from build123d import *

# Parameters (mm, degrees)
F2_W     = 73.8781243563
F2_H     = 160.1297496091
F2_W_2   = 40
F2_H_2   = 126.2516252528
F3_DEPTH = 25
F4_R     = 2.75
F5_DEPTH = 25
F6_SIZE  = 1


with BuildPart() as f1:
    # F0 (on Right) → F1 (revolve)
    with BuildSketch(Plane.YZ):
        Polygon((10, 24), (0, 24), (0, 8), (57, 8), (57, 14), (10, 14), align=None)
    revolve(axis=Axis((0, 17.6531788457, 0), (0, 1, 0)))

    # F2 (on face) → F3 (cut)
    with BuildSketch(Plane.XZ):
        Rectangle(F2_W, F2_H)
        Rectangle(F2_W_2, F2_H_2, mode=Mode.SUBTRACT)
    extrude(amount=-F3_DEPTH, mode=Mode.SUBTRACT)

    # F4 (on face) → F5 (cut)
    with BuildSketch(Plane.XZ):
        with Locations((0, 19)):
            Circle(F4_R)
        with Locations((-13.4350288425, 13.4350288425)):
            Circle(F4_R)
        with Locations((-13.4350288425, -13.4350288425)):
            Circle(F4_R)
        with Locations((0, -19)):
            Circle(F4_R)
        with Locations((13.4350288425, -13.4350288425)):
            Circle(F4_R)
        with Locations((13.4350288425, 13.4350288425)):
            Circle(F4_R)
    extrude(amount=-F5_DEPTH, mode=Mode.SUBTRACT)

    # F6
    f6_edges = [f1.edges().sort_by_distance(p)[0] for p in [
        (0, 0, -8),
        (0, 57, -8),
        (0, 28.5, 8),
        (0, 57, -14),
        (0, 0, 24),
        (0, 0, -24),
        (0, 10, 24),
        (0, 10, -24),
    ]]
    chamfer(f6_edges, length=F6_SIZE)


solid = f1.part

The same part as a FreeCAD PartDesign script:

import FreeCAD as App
import Part
import Sketcher
from FreeCAD import Vector
Q = App.Units.Quantity


def edges_at(feature, points):
    """Names of the edges that pass closest to the given points."""
    edges = feature.Shape.Edges
    near = lambda p: min(range(len(edges)), key=lambda i: edges[i].distToShape(Part.Vertex(*p))[0])
    return sorted({f"Edge{near(p) + 1}" for p in points})

doc = App.newDocument("Part")
body = doc.addObject("PartDesign::Body", "Body")

# Sketch on YZ plane
sketch1 = body.newObject("Sketcher::SketchObject", "Sketch")
sketch1.AttachmentSupport = (doc.getObject("YZ_Plane"), [""])
sketch1.MapMode = "FlatFace"
sketch1.addGeometry([
    Part.LineSegment(Vector(10, 24, 0), Vector(0, 24, 0)),  # 0
    Part.LineSegment(Vector(0, 24, 0), Vector(0, 8, 0)),  # 1
    Part.LineSegment(Vector(0, 8, 0), Vector(57, 8, 0)),  # 2
    Part.LineSegment(Vector(57, 8, 0), Vector(57, 14, 0)),  # 3
    Part.LineSegment(Vector(57, 14, 0), Vector(10, 14, 0)),  # 4
    Part.LineSegment(Vector(10, 14, 0), Vector(10, 24, 0)),  # 5
], False)
sketch1.addConstraint([
    Sketcher.Constraint("Coincident", 0, 2, 1, 1),
    Sketcher.Constraint("Coincident", 1, 2, 2, 1),
    Sketcher.Constraint("Coincident", 2, 2, 3, 1),
    Sketcher.Constraint("Coincident", 3, 2, 4, 1),
    Sketcher.Constraint("Coincident", 4, 2, 5, 1),
    Sketcher.Constraint("Coincident", 5, 2, 0, 1),
    Sketcher.Constraint("Horizontal", 0),
    Sketcher.Constraint("Vertical", 1),
    Sketcher.Constraint("Horizontal", 2),
    Sketcher.Constraint("Vertical", 3),
    Sketcher.Constraint("Horizontal", 4),
    Sketcher.Constraint("Vertical", 5),
    Sketcher.Constraint("PointOnObject", 0, 2, -2),
    Sketcher.Constraint("Equal", 0, 5),
    Sketcher.Constraint("DistanceX", 0, 2, 0, 1, Q("10 mm")),
    Sketcher.Constraint("DistanceX", 2, 1, 2, 2, Q("57 mm")),
    Sketcher.Constraint("DistanceY", 1, 2, 1, 1, Q("16 mm")),
    Sketcher.Constraint("DistanceY", -1, 1, 0, 2, Q("24 mm")),
])
revolution = body.newObject("PartDesign::Revolution", "Revolution")
revolution.Profile = sketch1
revolution.ReferenceAxis = (sketch1, ["H_Axis"])
revolution.Angle = 360

# Sketch on XZ plane
sketch2 = body.newObject("Sketcher::SketchObject", "Sketch001")
sketch2.AttachmentSupport = (doc.getObject("XZ_Plane"), [""])
sketch2.MapMode = "FlatFace"
sketch2.addGeometry([
    Part.LineSegment(Vector(-36.939062, 80.064875, 0), Vector(-36.939062, -80.064875, 0)),  # 0
    Part.LineSegment(Vector(-36.939062, -80.064875, 0), Vector(36.939062, -80.064875, 0)),  # 1
    Part.LineSegment(Vector(36.939062, -80.064875, 0), Vector(36.939062, 80.064875, 0)),  # 2
    Part.LineSegment(Vector(36.939062, 80.064875, 0), Vector(-36.939062, 80.064875, 0)),  # 3
    Part.LineSegment(Vector(20, -63.125813, 0), Vector(-20, -63.125813, 0)),  # 4
    Part.LineSegment(Vector(-20, -63.125813, 0), Vector(-20, 63.125813, 0)),  # 5
    Part.LineSegment(Vector(-20, 63.125813, 0), Vector(20, 63.125813, 0)),  # 6
    Part.LineSegment(Vector(20, 63.125813, 0), Vector(20, -63.125813, 0)),  # 7
], False)
sketch2.addConstraint([
    Sketcher.Constraint("Coincident", 0, 2, 1, 1),
    Sketcher.Constraint("Coincident", 1, 2, 2, 1),
    Sketcher.Constraint("Coincident", 2, 2, 3, 1),
    Sketcher.Constraint("Coincident", 3, 2, 0, 1),
    Sketcher.Constraint("Coincident", 4, 2, 5, 1),
    Sketcher.Constraint("Coincident", 5, 2, 6, 1),
    Sketcher.Constraint("Coincident", 6, 2, 7, 1),
    Sketcher.Constraint("Coincident", 7, 2, 4, 1),
    Sketcher.Constraint("Vertical", 0),
    Sketcher.Constraint("Horizontal", 1),
    Sketcher.Constraint("Vertical", 2),
    Sketcher.Constraint("Horizontal", 3),
    Sketcher.Constraint("Horizontal", 4),
    Sketcher.Constraint("Vertical", 5),
    Sketcher.Constraint("Horizontal", 6),
    Sketcher.Constraint("Vertical", 7),
    Sketcher.Constraint("Symmetric", 0, 2, 2, 2, -1, 1),
    Sketcher.Constraint("Symmetric", 4, 2, 6, 2, -1, 1),
    Sketcher.Constraint("DistanceX", 4, 2, 4, 1, Q("40 mm")),
    Sketcher.Constraint("DistanceY", 0, 2, 0, 1, Q("160.12975 mm")),
    Sketcher.Constraint("DistanceX", 1, 1, 1, 2, Q("73.878124 mm")),
    Sketcher.Constraint("DistanceY", 5, 1, 5, 2, Q("126.251625 mm")),
])
pocket1 = body.newObject("PartDesign::Pocket", "Pocket")
pocket1.Profile = sketch2
pocket1.Length = 25

# Sketch on XZ plane
sketch3 = body.newObject("Sketcher::SketchObject", "Sketch002")
sketch3.AttachmentSupport = (doc.getObject("XZ_Plane"), [""])
sketch3.MapMode = "FlatFace"
sketch3.addGeometry([
    Part.Circle(Vector(0, 19, 0), Vector(0, 0, 1), 2.75),  # 0
    Part.Circle(Vector(-13.435029, 13.435029, 0), Vector(0, 0, 1), 2.75),  # 1
    Part.Circle(Vector(-13.435029, -13.435029, 0), Vector(0, 0, 1), 2.75),  # 2
    Part.Circle(Vector(0, -19, 0), Vector(0, 0, 1), 2.75),  # 3
    Part.Circle(Vector(13.435029, -13.435029, 0), Vector(0, 0, 1), 2.75),  # 4
    Part.Circle(Vector(13.435029, 13.435029, 0), Vector(0, 0, 1), 2.75),  # 5
], False)
sketch3.addConstraint([
    Sketcher.Constraint("Equal", 0, 1),
    Sketcher.Constraint("Equal", 1, 2),
    Sketcher.Constraint("Equal", 2, 3),
    Sketcher.Constraint("Equal", 3, 4),
    Sketcher.Constraint("Equal", 4, 5),
    Sketcher.Constraint("Symmetric", 0, 3, 3, 3, -1, 1),
    Sketcher.Constraint("Symmetric", 1, 3, 4, 3, -1, 1),
    Sketcher.Constraint("Symmetric", 2, 3, 5, 3, -1, 1),
    Sketcher.Constraint("Symmetric", 2, 3, 4, 3, -2),
    Sketcher.Constraint("PointOnObject", 0, 3, -2),
    Sketcher.Constraint("Diameter", 0, Q("5.5 mm")),
    Sketcher.Constraint("DistanceY", -1, 1, 0, 3, Q("19 mm")),
    Sketcher.Constraint("DistanceX", 1, 3, -1, 1, Q("13.435029 mm")),
    Sketcher.Constraint("DistanceY", -1, 1, 1, 3, Q("13.435029 mm")),
])
pocket2 = body.newObject("PartDesign::Pocket", "Pocket001")
pocket2.Profile = sketch3
pocket2.Length = 25
doc.recompute()

chamfer = body.newObject("PartDesign::Chamfer", "Chamfer")
chamfer.Base = (pocket2, edges_at(pocket2, [
    (0, 0, -8),
    (0, 57, -8),
    (0, 28.5, 8),
    (0, 57, -14),
    (0, 0, 24),
    (0, 0, -24),
    (0, 10, 24),
    (0, 10, -24),
]))
chamfer.Size = 1

doc.recompute()
